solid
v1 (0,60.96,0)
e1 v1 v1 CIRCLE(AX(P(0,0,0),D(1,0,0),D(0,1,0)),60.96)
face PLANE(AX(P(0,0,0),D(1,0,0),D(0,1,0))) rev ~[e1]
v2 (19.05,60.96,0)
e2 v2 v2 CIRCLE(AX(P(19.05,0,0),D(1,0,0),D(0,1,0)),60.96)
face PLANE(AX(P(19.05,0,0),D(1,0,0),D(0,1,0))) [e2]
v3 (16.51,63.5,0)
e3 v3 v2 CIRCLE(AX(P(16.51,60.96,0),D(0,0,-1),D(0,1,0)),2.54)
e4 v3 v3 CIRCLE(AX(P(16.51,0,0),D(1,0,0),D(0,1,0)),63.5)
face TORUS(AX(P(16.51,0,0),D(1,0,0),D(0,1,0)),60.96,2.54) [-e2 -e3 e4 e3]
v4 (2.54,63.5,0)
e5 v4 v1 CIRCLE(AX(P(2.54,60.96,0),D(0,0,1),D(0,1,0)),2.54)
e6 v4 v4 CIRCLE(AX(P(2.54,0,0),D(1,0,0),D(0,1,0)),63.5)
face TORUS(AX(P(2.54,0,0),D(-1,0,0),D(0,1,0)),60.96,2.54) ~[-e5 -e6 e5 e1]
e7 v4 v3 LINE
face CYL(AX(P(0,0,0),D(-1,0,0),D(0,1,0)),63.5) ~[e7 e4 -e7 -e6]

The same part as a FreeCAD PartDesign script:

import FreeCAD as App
import Part
import Sketcher

V = App.Vector
Q = App.Units.Quantity


def edges_at(feature, points):
    """Names of the edges that pass closest to the given points."""
    edges = feature.Shape.Edges
    near = lambda p: min(range(len(edges)), key=lambda i: edges[i].distToShape(Part.Vertex(*p))[0])
    return sorted({f"Edge{near(p) + 1}" for p in points})

doc = App.newDocument("Part")
body = doc.addObject("PartDesign::Body", "Body")

# Sketch on YZ plane
sketch1 = doc.addObject("Sketcher::SketchObject", "Sketch")
body.addObject(sketch1)
sketch1.AttachmentSupport = (doc.YZ_Plane, [""])
sketch1.MapMode = "FlatFace"
sketch1.addGeometry(Part.Circle(V(0, 0, 0), V(0, 0, 1), 64), False)
sketch1.addConstraint([
    Sketcher.Constraint("Coincident", 0, 3, -1, 1),
    Sketcher.Constraint("Diameter", 0, Q("5 in")),
])
pad1 = doc.addObject("PartDesign::Pad", "Pad")
body.addObject(pad1)
pad1.Profile = sketch1
pad1.Length = Q("0.75 in")
doc.recompute()

fillet = doc.addObject("PartDesign::Fillet", "Fillet")
body.addObject(fillet)
fillet.Base = (pad1, edges_at(pad1, [(19.05, -63.5, 0)]))
fillet.Radius = Q("0.1 in")
doc.recompute()

fillet2 = doc.addObject("PartDesign::Fillet", "Fillet001")
body.addObject(fillet2)
fillet2.Base = (fillet, edges_at(fillet, [(0, -63.5, 0)]))
fillet2.Radius = Q("0.1 in")

doc.recompute()
